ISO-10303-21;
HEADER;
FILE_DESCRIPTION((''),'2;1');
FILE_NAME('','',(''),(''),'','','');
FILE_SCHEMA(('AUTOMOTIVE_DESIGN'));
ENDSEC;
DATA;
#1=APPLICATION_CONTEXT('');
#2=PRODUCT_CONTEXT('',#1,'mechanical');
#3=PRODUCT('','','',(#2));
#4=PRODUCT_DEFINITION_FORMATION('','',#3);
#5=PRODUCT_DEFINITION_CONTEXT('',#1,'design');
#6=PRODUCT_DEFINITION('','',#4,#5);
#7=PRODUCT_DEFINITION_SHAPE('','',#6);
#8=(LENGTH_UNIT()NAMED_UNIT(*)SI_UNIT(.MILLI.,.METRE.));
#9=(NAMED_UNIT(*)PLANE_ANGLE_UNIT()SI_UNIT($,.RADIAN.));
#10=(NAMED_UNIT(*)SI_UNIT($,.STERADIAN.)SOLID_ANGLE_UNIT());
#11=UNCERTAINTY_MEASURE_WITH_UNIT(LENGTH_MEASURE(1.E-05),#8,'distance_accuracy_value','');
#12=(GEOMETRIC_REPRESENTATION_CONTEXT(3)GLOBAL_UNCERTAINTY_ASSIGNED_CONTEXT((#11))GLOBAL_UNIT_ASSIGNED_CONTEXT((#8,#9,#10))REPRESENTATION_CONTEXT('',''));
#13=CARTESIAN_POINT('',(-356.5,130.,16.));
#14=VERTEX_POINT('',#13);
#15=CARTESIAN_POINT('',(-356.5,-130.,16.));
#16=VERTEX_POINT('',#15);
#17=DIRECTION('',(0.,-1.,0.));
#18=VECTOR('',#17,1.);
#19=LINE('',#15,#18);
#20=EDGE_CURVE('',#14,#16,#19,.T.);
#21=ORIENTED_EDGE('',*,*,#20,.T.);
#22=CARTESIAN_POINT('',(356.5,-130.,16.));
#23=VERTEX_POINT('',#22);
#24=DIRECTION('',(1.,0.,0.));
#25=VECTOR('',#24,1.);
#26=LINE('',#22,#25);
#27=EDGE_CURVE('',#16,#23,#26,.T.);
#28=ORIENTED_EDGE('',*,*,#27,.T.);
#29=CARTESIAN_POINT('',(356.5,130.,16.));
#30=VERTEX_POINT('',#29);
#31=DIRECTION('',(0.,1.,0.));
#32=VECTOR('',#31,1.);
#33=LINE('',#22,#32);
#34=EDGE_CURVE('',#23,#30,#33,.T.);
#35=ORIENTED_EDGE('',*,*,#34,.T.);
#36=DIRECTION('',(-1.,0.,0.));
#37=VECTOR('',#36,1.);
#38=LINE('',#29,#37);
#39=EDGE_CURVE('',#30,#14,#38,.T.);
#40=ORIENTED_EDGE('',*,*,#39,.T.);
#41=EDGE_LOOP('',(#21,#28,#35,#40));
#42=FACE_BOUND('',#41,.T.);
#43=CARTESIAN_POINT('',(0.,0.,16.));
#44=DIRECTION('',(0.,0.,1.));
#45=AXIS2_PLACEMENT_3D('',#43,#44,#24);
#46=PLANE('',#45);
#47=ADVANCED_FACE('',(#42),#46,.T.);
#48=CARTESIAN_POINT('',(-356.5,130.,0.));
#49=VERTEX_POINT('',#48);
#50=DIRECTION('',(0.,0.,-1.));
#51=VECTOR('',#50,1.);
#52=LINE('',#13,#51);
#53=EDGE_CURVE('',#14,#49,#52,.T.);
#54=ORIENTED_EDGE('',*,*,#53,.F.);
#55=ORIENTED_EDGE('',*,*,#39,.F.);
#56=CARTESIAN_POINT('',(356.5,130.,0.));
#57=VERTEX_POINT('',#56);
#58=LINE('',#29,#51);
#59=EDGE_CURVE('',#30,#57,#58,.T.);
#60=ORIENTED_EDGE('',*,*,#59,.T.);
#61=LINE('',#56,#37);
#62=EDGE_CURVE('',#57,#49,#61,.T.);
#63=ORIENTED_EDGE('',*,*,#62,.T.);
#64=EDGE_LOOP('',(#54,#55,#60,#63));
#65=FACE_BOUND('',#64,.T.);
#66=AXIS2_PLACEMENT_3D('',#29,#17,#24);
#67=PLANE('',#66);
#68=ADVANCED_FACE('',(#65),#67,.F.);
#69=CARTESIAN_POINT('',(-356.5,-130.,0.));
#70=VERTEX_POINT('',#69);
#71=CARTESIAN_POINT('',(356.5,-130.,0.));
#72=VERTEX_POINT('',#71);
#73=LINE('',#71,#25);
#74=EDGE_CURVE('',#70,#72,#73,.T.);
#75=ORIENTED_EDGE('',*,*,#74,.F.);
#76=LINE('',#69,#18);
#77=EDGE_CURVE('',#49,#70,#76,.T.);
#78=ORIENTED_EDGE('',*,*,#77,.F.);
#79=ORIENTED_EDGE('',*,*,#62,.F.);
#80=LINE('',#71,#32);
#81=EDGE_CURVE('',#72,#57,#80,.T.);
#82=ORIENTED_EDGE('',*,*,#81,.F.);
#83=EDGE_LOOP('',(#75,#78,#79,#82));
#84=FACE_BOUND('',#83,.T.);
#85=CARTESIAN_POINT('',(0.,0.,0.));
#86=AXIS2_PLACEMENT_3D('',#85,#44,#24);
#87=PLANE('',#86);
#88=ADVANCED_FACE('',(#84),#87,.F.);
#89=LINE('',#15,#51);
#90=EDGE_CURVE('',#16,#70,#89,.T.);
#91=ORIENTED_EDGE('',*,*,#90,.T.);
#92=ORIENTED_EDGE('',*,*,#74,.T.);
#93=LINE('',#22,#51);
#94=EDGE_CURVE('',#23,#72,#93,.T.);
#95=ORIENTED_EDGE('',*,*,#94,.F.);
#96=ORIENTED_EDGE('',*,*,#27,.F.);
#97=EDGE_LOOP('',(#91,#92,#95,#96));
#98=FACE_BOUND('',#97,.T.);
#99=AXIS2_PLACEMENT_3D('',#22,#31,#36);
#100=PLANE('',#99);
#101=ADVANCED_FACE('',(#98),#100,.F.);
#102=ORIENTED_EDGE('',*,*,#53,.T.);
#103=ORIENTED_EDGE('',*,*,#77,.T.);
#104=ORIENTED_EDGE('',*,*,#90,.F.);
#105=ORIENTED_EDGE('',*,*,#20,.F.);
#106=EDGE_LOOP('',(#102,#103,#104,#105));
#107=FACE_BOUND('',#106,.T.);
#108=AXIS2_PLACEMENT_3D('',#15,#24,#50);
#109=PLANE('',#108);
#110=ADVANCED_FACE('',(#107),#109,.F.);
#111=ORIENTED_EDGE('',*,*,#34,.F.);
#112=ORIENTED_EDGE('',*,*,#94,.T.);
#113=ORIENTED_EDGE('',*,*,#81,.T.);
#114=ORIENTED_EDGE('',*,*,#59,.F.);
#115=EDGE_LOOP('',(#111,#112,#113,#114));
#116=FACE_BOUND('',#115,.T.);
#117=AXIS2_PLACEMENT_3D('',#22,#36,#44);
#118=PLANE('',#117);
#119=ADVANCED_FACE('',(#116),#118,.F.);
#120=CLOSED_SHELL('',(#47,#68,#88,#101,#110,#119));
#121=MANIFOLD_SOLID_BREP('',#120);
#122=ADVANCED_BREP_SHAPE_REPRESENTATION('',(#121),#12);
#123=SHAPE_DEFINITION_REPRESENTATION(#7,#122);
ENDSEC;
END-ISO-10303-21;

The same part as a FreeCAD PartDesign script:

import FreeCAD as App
import Part
import Sketcher
Q = App.Units.Quantity

doc = App.newDocument("Part")
body = doc.addObject("PartDesign::Body", "Body")

sketch1 = body.newObject("Sketcher::SketchObject", "Sketch")
sketch1.AttachmentSupport = (doc.getObject("XY_Plane"), [""])
sketch1.MapMode = "FlatFace"
sketch1.addGeometry([
    Part.LineSegment(App.Vector(-356, 130, 0), App.Vector(-356, -130, 0)),
    Part.LineSegment(App.Vector(-356, -130, 0), App.Vector(356, -130, 0)),
    Part.LineSegment(App.Vector(356, -130, 0), App.Vector(356, 130, 0)),
    Part.LineSegment(App.Vector(356, 130, 0), App.Vector(-356, 130, 0)),
], False)
sketch1.addConstraint([
    Sketcher.Constraint("Coincident", 0, 2, 1, 1),
    Sketcher.Constraint("Coincident", 1, 2, 2, 1),
    Sketcher.Constraint("Coincident", 2, 2, 3, 1),
    Sketcher.Constraint("Coincident", 3, 2, 0, 1),
    Sketcher.Constraint("Vertical", 0),
    Sketcher.Constraint("Horizontal", 1),
    Sketcher.Constraint("Vertical", 2),
    Sketcher.Constraint("Horizontal", 3),
    Sketcher.Constraint("Symmetric", 0, 2, 2, 2, -1, 1),
    Sketcher.Constraint("DistanceX", 1, 1, 1, 2, Q("713 mm")),
    Sketcher.Constraint("DistanceY", 0, 2, 0, 1, Q("260 mm")),
])
pad1 = body.newObject("PartDesign::Pad", "Pad")
pad1.Profile = sketch1
pad1.Length = 16

doc.recompute()
